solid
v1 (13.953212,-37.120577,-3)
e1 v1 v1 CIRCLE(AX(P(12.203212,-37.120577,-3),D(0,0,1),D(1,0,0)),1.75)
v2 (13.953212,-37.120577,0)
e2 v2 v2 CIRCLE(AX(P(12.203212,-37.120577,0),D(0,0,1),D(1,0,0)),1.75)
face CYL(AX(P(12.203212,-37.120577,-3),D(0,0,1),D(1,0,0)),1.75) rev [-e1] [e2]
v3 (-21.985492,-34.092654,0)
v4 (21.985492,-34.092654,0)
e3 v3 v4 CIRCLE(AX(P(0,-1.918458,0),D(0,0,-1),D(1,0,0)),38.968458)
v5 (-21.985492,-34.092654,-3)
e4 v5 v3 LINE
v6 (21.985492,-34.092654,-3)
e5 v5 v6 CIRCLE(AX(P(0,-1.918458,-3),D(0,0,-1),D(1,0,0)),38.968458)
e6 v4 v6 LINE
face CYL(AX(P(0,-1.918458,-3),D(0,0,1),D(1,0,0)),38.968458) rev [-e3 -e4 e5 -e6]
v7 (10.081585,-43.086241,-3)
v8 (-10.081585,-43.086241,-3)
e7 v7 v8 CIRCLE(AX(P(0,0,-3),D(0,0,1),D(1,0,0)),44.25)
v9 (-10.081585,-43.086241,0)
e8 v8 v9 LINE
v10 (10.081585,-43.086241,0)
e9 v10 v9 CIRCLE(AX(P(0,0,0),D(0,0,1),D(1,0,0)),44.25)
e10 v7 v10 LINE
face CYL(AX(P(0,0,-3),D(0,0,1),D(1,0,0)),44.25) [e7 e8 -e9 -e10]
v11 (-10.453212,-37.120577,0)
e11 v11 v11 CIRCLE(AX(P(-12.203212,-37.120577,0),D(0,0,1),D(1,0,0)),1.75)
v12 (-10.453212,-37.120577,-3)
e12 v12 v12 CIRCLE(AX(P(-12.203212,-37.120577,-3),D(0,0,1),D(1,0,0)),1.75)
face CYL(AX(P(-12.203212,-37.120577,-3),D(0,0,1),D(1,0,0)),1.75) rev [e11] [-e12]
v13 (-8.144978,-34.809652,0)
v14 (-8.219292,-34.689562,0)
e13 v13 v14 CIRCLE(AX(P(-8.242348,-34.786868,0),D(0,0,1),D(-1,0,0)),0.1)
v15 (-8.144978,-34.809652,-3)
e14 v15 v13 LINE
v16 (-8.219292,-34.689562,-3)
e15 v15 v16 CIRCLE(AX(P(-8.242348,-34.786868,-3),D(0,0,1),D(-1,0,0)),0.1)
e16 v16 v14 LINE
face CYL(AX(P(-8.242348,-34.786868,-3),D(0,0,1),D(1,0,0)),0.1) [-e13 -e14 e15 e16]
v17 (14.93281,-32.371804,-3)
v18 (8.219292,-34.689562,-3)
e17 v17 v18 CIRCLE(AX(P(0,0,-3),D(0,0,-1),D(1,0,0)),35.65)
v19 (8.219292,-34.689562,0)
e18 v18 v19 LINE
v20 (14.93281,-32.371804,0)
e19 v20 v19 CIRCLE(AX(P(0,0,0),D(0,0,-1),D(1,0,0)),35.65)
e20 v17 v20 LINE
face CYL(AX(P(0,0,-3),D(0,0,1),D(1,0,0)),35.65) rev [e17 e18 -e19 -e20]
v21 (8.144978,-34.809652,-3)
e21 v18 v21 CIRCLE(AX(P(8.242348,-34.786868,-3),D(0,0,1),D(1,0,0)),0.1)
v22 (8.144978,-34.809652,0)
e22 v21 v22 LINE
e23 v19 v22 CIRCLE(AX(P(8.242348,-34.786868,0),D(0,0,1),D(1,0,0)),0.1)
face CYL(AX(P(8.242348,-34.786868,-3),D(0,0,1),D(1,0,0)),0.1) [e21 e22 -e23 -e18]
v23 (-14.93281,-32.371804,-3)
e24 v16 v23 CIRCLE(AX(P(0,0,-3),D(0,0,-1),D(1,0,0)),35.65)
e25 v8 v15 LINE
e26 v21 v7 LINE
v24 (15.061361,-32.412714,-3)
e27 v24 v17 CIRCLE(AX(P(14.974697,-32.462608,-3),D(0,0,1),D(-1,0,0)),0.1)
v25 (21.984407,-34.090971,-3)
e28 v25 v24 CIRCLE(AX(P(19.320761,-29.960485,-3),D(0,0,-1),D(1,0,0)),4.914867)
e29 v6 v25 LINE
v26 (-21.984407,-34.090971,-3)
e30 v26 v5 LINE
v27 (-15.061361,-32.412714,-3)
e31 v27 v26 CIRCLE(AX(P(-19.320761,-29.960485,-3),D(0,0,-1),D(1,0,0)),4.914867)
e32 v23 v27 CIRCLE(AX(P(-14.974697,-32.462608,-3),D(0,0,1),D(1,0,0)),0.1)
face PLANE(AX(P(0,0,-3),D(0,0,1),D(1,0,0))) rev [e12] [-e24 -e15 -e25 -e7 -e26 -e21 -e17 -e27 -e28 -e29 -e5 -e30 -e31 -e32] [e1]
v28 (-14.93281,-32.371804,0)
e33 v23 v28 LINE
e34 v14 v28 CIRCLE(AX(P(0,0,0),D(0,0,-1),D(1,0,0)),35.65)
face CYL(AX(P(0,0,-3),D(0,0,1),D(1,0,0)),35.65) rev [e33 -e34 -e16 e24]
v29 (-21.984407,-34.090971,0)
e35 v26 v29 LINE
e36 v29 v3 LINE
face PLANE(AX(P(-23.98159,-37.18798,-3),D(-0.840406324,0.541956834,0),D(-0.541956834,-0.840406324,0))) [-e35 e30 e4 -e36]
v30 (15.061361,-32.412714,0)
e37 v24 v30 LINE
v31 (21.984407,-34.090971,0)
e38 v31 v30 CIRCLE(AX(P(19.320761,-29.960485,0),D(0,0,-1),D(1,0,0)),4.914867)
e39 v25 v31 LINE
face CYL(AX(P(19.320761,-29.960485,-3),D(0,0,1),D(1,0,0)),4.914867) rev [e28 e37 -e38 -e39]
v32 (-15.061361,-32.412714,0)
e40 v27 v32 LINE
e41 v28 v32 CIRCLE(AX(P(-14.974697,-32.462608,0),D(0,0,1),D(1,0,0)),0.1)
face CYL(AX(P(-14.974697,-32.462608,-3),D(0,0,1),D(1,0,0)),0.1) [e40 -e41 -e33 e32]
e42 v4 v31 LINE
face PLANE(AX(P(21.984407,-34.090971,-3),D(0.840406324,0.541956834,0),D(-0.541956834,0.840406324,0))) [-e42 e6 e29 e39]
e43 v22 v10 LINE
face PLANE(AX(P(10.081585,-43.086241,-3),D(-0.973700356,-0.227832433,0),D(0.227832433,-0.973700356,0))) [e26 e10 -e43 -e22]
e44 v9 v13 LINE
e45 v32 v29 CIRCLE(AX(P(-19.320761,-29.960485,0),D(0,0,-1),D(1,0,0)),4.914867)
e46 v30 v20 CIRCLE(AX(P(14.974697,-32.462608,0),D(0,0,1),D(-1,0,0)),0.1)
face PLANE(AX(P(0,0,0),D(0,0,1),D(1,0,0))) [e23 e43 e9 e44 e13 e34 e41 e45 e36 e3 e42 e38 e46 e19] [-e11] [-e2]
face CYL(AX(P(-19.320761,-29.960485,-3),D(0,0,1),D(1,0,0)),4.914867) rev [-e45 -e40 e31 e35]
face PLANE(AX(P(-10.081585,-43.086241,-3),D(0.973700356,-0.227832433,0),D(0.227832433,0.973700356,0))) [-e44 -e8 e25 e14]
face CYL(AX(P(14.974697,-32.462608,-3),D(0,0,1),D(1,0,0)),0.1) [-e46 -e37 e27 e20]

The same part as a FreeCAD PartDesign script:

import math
import FreeCAD as App
import Part
import Sketcher

V = App.Vector
Q = App.Units.Quantity

doc = App.newDocument("Part")
params = doc.addObject("Spreadsheet::Sheet", "Params")
for row, (alias, value) in enumerate([
    ("sketch1_diameter", "3.5 mm"),
    ("sketch1_radius", "44.25 mm"),
    ("pad1_length", "3 mm"),
    ("sketch2_diameter", "3.5 mm"),
    ("sketch2_radius", "0.1 mm"),
    ("sketch2_radius2", "44.25 mm"),
    ("sketch2_radius3", "35.65 mm"),
    ("pad2_length", "3 mm"),
], start=1):
    params.set(f"A{row}", alias)
    params.set(f"B{row}", "=" + value)
    params.setAlias(f"B{row}", alias)

body = doc.addObject("PartDesign::Body", "Body")

# Sketch on XY plane
sketch1 = doc.addObject("Sketcher::SketchObject", "Sketch")
body.addObject(sketch1)
sketch1.AttachmentSupport = (doc.XY_Plane, [""])
sketch1.MapMode = "FlatFace"
sketch1.addGeometry([
    Part.LineSegment(V(8.868288, -37.900903, 0), V(10.081585, -43.086241, 0)),  # 0
    Part.ArcOfCircle(Part.Circle(V(0, 0, 0), V(0, 0, 1), 44.25), math.radians(-76.830508), math.radians(256.830508)),  # 1
    Part.LineSegment(V(-10.081585, -43.086241, 0), V(-8.868288, -37.900903, 0)),  # 2
    Part.ArcOfCircle(Part.Circle(V(-12.203212, -37.120577, 0), V(0, 0, 1), 3.425), math.radians(-13.169492), math.radians(141.224575)),  # 3
    Part.ArcOfCircle(Part.Circle(V(-17.543517, -32.830631, 0), V(0, 0, 1), 3.425), math.radians(-119.576115), math.radians(-38.775425)),  # 4
    Part.ArcOfCircle(Part.Circle(V(0, -1.918458, 0), V(0, 0, 1), 38.968458), math.radians(-60.423885), math.radians(240.423885)),  # 5
    Part.ArcOfCircle(Part.Circle(V(17.543517, -32.830631, 0), V(0, 0, 1), 3.425), math.radians(-141.224575), math.radians(-60.423885)),  # 6
    Part.ArcOfCircle(Part.Circle(V(12.203212, -37.120577, 0), V(0, 0, 1), 3.425), math.radians(38.775425), math.radians(193.169492)),  # 7
    Part.Circle(V(12.203212, -37.120577, 0), V(0, 0, 1), 1.75),  # 8
    Part.Circle(V(-12.203212, -37.120577, 0), V(0, 0, 1), 1.75),  # 9
], False)
sketch1.addConstraint([
    Sketcher.Constraint("Coincident", 0, 2, 1, 1),
    Sketcher.Constraint("Coincident", 1, 2, 2, 1),
    Sketcher.Constraint("Tangent", 2, 2, 3, 1),
    Sketcher.Constraint("Tangent", 3, 2, 4, 2),
    Sketcher.Constraint("Tangent", 4, 1, 5, 2),
    Sketcher.Constraint("Tangent", 5, 1, 6, 2),
    Sketcher.Constraint("Tangent", 6, 1, 7, 1),
    Sketcher.Constraint("Tangent", 7, 2, 0, 1),
    Sketcher.Constraint("Coincident", 1, 3, -1, 1),
    Sketcher.Constraint("Coincident", 8, 3, 7, 3),
    Sketcher.Constraint("Coincident", 9, 3, 3, 3),
    Sketcher.Constraint("Equal", 3, 4),
    Sketcher.Constraint("Equal", 4, 6),
    Sketcher.Constraint("Equal", 6, 7),
    Sketcher.Constraint("Equal", 8, 9),
    Sketcher.Constraint("Symmetric", 4, 3, 6, 3, -2),
    Sketcher.Constraint("Symmetric", 2, 2, 7, 2, -2),
    Sketcher.Constraint("Diameter", 8, Q("3.5 mm")),
    Sketcher.Constraint("Radius", 1, Q("44.25 mm")),
    Sketcher.Constraint("Radius", 3, Q("3.425 mm")),
    Sketcher.Constraint("Radius", 5, Q("38.968458 mm")),
    Sketcher.Constraint("DistanceY", 2, 2, 3, 2, Q("2.925299 mm")),
    Sketcher.Constraint("DistanceX", 3, 3, -1, 1, Q("12.203212 mm")),
    Sketcher.Constraint("DistanceY", 4, 3, -1, 1, Q("32.830631 mm")),
    Sketcher.Constraint("DistanceY", 5, 3, -1, 1, Q("1.918458 mm")),
])
sketch1.setExpression("Constraints[17]", "Params.sketch1_diameter")
sketch1.setExpression("Constraints[18]", "Params.sketch1_radius")
pad1 = doc.addObject("PartDesign::Pad", "Pad")
body.addObject(pad1)
pad1.Profile = sketch1
pad1.setExpression("Length", "Params.pad1_length")
pad1.Reversed = True

# Sketch on XY plane
sketch2 = doc.addObject("Sketcher::SketchObject", "Sketch001")
body.addObject(sketch2)
sketch2.AttachmentSupport = (doc.XY_Plane, [""])
sketch2.MapMode = "FlatFace"
sketch2.addGeometry([
    Part.LineSegment(V(8.144978, -34.809652, 0), V(10.081585, -43.086241, 0)),  # 0
    Part.ArcOfCircle(Part.Circle(V(0, 0, 0), V(0, 0, 1), 44.25), math.radians(-76.830508), math.radians(-57.183051)),  # 1
    Part.LineSegment(V(23.98159, -37.18798, 0), V(21.984407, -34.090971, 0)),  # 2
    Part.ArcOfCircle(Part.Circle(V(19.320761, -29.960485, 0), V(0, 0, 1), 4.914867), math.radians(-150.070036), math.radians(-57.183051)),  # 3
    Part.ArcOfCircle(Part.Circle(V(14.974697, -32.462608, 0), V(0, 0, 1), 0.1), math.radians(29.929965), math.radians(114.763434)),  # 4
    Part.ArcOfCircle(Part.Circle(V(0, 0, 0), V(0, 0, 1), 35.65), math.radians(-76.67024), math.radians(-65.236566)),  # 5
    Part.ArcOfCircle(Part.Circle(V(8.242348, -34.786868, 0), V(0, 0, 1), 0.1), math.radians(103.32976), math.radians(193.169491)),  # 6
    Part.Circle(V(12.203212, -37.120577, 0), V(0, 0, 1), 1.75),  # 7
    Part.LineSegment(V(-10.081585, -43.086241, 0), V(-8.144978, -34.809652, 0)),  # 8
    Part.ArcOfCircle(Part.Circle(V(-8.242348, -34.786868, 0), V(0, 0, 1), 0.1), math.radians(-13.169491), math.radians(76.67024)),  # 9
    Part.ArcOfCircle(Part.Circle(V(0, 0, 0), V(0, 0, 1), 35.65), math.radians(-114.763434), math.radians(-103.32976)),  # 10
    Part.ArcOfCircle(Part.Circle(V(-14.974697, -32.462608, 0), V(0, 0, 1), 0.1), math.radians(65.236566), math.radians(150.070035)),  # 11
    Part.ArcOfCircle(Part.Circle(V(-19.320761, -29.960485, 0), V(0, 0, 1), 4.914867), math.radians(-122.816949), math.radians(-29.929964)),  # 12
    Part.LineSegment(V(-21.984407, -34.090971, 0), V(-23.98159, -37.18798, 0)),  # 13
    Part.ArcOfCircle(Part.Circle(V(0, 0, 0), V(0, 0, 1), 44.25), math.radians(-122.816949), math.radians(-103.169492)),  # 14
    Part.Circle(V(-12.203212, -37.120577, 0), V(0, 0, 1), 1.75),  # 15
], False)
sketch2.addConstraint([
    Sketcher.Constraint("Coincident", 0, 2, 1, 1),
    Sketcher.Constraint("Coincident", 1, 2, 2, 1),
    Sketcher.Constraint("Coincident", 2, 2, 3, 2),
    Sketcher.Constraint("Tangent", 3, 1, 4, 1),
    Sketcher.Constraint("Tangent", 4, 2, 5, 2),
    Sketcher.Constraint("Tangent", 5, 1, 6, 1),
    Sketcher.Constraint("Tangent", 6, 2, 0, 1),
    Sketcher.Constraint("Tangent", 8, 2, 9, 1),
    Sketcher.Constraint("Tangent", 9, 2, 10, 2),
    Sketcher.Constraint("Tangent", 10, 1, 11, 1),
    Sketcher.Constraint("Tangent", 11, 2, 12, 2),
    Sketcher.Constraint("Coincident", 12, 1, 13, 1),
    Sketcher.Constraint("Coincident", 13, 2, 14, 1),
    Sketcher.Constraint("Coincident", 14, 2, 8, 1),
    Sketcher.Constraint("Coincident", 1, 3, -1, 1),
    Sketcher.Constraint("Coincident", 5, 3, -1, 1),
    Sketcher.Constraint("Coincident", 10, 3, -1, 1),
    Sketcher.Constraint("Coincident", 14, 3, -1, 1),
    Sketcher.Constraint("Equal", 4, 6),
    Sketcher.Constraint("Equal", 6, 9),
    Sketcher.Constraint("Equal", 5, 10),
    Sketcher.Constraint("Equal", 9, 11),
    Sketcher.Constraint("Equal", 3, 12),
    Sketcher.Constraint("Equal", 1, 14),
    Sketcher.Constraint("Equal", 7, 15),
    Sketcher.Constraint("Symmetric", 3, 3, 12, 3, -2),
    Sketcher.Constraint("Symmetric", 7, 3, 15, 3, -2),
    Sketcher.Constraint("Symmetric", 6, 2, 8, 2, -2),
    Sketcher.Constraint("Horizontal", 2, 2, 12, 1),
    Sketcher.Constraint("Horizontal", 1, 2, 13, 2),
    Sketcher.Constraint("Diameter", 7, Q("3.5 mm")),
    Sketcher.Constraint("Radius", 4, Q("0.1 mm")),
    Sketcher.Constraint("Radius", 1, Q("44.25 mm")),
    Sketcher.Constraint("Radius", 5, Q("35.65 mm")),
    Sketcher.Constraint("Radius", 3, Q("4.914867 mm")),
    Sketcher.Constraint("DistanceX", 3, 1, 3, 3, Q("4.2594 mm")),
    Sketcher.Constraint("DistanceX", 7, 3, 4, 2, Q("2.729599 mm")),
    Sketcher.Constraint("Distance", 0, Q("8.50014 mm")),
    Sketcher.Constraint("DistanceX", -1, 1, 3, 3, Q("19.320761 mm")),
    Sketcher.Constraint("DistanceY", 6, 3, -1, 1, Q("34.786868 mm")),
    Sketcher.Constraint("DistanceX", -1, 1, 1, 2, Q("23.98159 mm")),
    Sketcher.Constraint("DistanceY", 2, 2, -1, 1, Q("34.090971 mm")),
    Sketcher.Constraint("DistanceY", 7, 3, 6, 3, Q("2.333709 mm")),
])
sketch2.setExpression("Constraints[30]", "Params.sketch2_diameter")
sketch2.setExpression("Constraints[31]", "Params.sketch2_radius")
sketch2.setExpression("Constraints[32]", "Params.sketch2_radius2")
sketch2.setExpression("Constraints[33]", "Params.sketch2_radius3")
pad2 = doc.addObject("PartDesign::Pad", "Pad001")
body.addObject(pad2)
pad2.Profile = sketch2
pad2.setExpression("Length", "Params.pad2_length")
pad2.Reversed = True

doc.recompute()
